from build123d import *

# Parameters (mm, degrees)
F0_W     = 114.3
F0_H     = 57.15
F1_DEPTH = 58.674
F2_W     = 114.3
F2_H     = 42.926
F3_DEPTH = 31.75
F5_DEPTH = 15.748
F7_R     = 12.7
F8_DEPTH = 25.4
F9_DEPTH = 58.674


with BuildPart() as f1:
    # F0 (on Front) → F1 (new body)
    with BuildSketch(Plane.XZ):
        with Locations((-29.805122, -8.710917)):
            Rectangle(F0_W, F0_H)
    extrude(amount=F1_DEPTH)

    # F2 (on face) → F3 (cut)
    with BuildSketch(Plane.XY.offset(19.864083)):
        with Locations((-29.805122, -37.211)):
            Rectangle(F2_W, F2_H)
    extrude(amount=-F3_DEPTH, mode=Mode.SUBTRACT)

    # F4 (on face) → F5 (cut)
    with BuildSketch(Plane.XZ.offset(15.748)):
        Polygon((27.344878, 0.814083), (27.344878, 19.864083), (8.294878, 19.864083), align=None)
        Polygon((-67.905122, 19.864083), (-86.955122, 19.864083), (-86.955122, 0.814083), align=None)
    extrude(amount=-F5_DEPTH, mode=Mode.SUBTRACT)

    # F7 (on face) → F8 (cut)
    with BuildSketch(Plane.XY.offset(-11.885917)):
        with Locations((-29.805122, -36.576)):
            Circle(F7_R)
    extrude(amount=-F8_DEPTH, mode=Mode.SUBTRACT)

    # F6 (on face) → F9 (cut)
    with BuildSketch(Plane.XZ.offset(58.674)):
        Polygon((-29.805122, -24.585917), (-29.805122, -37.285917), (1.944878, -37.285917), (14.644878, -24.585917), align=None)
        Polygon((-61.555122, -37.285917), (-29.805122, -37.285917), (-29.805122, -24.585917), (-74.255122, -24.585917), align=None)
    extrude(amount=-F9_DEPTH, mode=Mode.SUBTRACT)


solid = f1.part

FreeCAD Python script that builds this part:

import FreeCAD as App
import Part
import Sketcher
from FreeCAD import Vector
Q = App.Units.Quantity

doc = App.newDocument("Part")
body = doc.addObject("PartDesign::Body", "Body")

# Sketch on XZ plane
sketch1 = body.newObject("Sketcher::SketchObject", "Sketch")
sketch1.AttachmentSupport = (doc.getObject("XZ_Plane"), [""])
sketch1.MapMode = "FlatFace"
sketch1.addGeometry(Part.LineSegment(Vector(-87, 20, 0), Vector(-87, -37, 0)), False)
sketch1.addGeometry(Part.LineSegment(Vector(-87, -37, 0), Vector(27, -37, 0)), False)
sketch1.addGeometry(Part.LineSegment(Vector(27, -37, 0), Vector(27, 20, 0)), False)
sketch1.addGeometry(Part.LineSegment(Vector(27, 20, 0), Vector(-87, 20, 0)), False)
sketch1.addConstraint(Sketcher.Constraint("Coincident", 0, 2, 1, 1))
sketch1.addConstraint(Sketcher.Constraint("Coincident", 1, 2, 2, 1))
sketch1.addConstraint(Sketcher.Constraint("Coincident", 2, 2, 3, 1))
sketch1.addConstraint(Sketcher.Constraint("Coincident", 3, 2, 0, 1))
sketch1.addConstraint(Sketcher.Constraint("Vertical", 0))
sketch1.addConstraint(Sketcher.Constraint("Horizontal", 1))
sketch1.addConstraint(Sketcher.Constraint("Vertical", 2))
sketch1.addConstraint(Sketcher.Constraint("Horizontal", 3))
sketch1.addConstraint(Sketcher.Constraint("DistanceX", 1, 1, 1, 2, Q("4.5 in")))
sketch1.addConstraint(Sketcher.Constraint("DistanceY", 0, 2, 0, 1, Q("2.25 in")))
sketch1.addConstraint(Sketcher.Constraint("DistanceX", -1, 1, 1, 2, 27.344878))
sketch1.addConstraint(Sketcher.Constraint("DistanceY", 0, 2, -1, 1, 37.285917))
pad1 = body.newObject("PartDesign::Pad", "Pad")
pad1.Profile = sketch1
pad1.Length = Q("2.31 in")

# Sketch on XY plane
sketch2 = body.newObject("Sketcher::SketchObject", "Sketch001")
sketch2.AttachmentSupport = (doc.getObject("XY_Plane"), [""])
sketch2.MapMode = "FlatFace"
sketch2.AttachmentOffset = App.Placement(Vector(0, 0, 19.864083), App.Rotation())
sketch2.addGeometry(Part.LineSegment(Vector(-87, -16, 0), Vector(-87, -59, 0)), False)
sketch2.addGeometry(Part.LineSegment(Vector(-87, -59, 0), Vector(27, -59, 0)), False)
sketch2.addGeometry(Part.LineSegment(Vector(27, -59, 0), Vector(27, -16, 0)), False)
sketch2.addGeometry(Part.LineSegment(Vector(27, -16, 0), Vector(-87, -16, 0)), False)
sketch2.addConstraint(Sketcher.Constraint("Coincident", 0, 2, 1, 1))
sketch2.addConstraint(Sketcher.Constraint("Coincident", 1, 2, 2, 1))
sketch2.addConstraint(Sketcher.Constraint("Coincident", 2, 2, 3, 1))
sketch2.addConstraint(Sketcher.Constraint("Coincident", 3, 2, 0, 1))
sketch2.addConstraint(Sketcher.Constraint("Vertical", 0))
sketch2.addConstraint(Sketcher.Constraint("Horizontal", 1))
sketch2.addConstraint(Sketcher.Constraint("Vertical", 2))
sketch2.addConstraint(Sketcher.Constraint("Horizontal", 3))
sketch2.addConstraint(Sketcher.Constraint("DistanceX", 1, 1, 1, 2, Q("4.5 in")))
sketch2.addConstraint(Sketcher.Constraint("DistanceY", 0, 2, 0, 1, Q("1.69 in")))
sketch2.addConstraint(Sketcher.Constraint("DistanceY", 0, 2, -1, 1, Q("2.31 in")))
sketch2.addConstraint(Sketcher.Constraint("DistanceX", -1, 1, 1, 2, 27.344878))
pocket1 = body.newObject("PartDesign::Pocket", "Pocket")
pocket1.Profile = sketch2
pocket1.Length = Q("1.25 in")

# Sketch on XZ plane
sketch3 = body.newObject("Sketcher::SketchObject", "Sketch002")
sketch3.AttachmentSupport = (doc.getObject("XZ_Plane"), [""])
sketch3.MapMode = "FlatFace"
sketch3.AttachmentOffset = App.Placement(Vector(0, 0, 0.62 * 25.4), App.Rotation())
sketch3.addGeometry(Part.LineSegment(Vector(27, 1, 0), Vector(27, 20, 0)), False)
sketch3.addGeometry(Part.LineSegment(Vector(27, 20, 0), Vector(8, 20, 0)), False)
sketch3.addGeometry(Part.LineSegment(Vector(8, 20, 0), Vector(27, 1, 0)), False)
sketch3.addGeometry(Part.LineSegment(Vector(-68, 20, 0), Vector(-87, 20, 0)), False)
sketch3.addGeometry(Part.LineSegment(Vector(-87, 20, 0), Vector(-87, 1, 0)), False)
sketch3.addGeometry(Part.LineSegment(Vector(-87, 1, 0), Vector(-68, 20, 0)), False)
sketch3.addConstraint(Sketcher.Constraint("Coincident", 0, 2, 1, 1))
sketch3.addConstraint(Sketcher.Constraint("Coincident", 1, 2, 2, 1))
sketch3.addConstraint(Sketcher.Constraint("Coincident", 2, 2, 0, 1))
sketch3.addConstraint(Sketcher.Constraint("Coincident", 3, 2, 4, 1))
sketch3.addConstraint(Sketcher.Constraint("Coincident", 4, 2, 5, 1))
sketch3.addConstraint(Sketcher.Constraint("Coincident", 5, 2, 3, 1))
sketch3.addConstraint(Sketcher.Constraint("Vertical", 0))
sketch3.addConstraint(Sketcher.Constraint("Horizontal", 1))
sketch3.addConstraint(Sketcher.Constraint("Horizontal", 3))
sketch3.addConstraint(Sketcher.Constraint("Vertical", 4))
sketch3.addConstraint(Sketcher.Constraint("Perpendicular", 2, 5))
sketch3.addConstraint(Sketcher.Constraint("Horizontal", 1, 2, 3, 2))
sketch3.addConstraint(Sketcher.Constraint("Horizontal", 2, 2, 4, 2))
sketch3.addConstraint(Sketcher.Constraint("Equal", 1, 3))
sketch3.addConstraint(Sketcher.Constraint("DistanceX", 5, 2, 1, 2, Q("3 in")))
sketch3.addConstraint(Sketcher.Constraint("DistanceX", 1, 2, 1, 1, Q("0.75 in")))
sketch3.addConstraint(Sketcher.Constraint("DistanceX", -1, 1, 0, 2, 27.344878))
sketch3.addConstraint(Sketcher.Constraint("DistanceY", -1, 1, 0, 2, 19.864083))
pocket2 = body.newObject("PartDesign::Pocket", "Pocket001")
pocket2.Profile = sketch3
pocket2.Length = Q("0.62 in")

# Sketch on XY plane
sketch4 = body.newObject("Sketcher::SketchObject", "Sketch003")
sketch4.AttachmentSupport = (doc.getObject("XY_Plane"), [""])
sketch4.MapMode = "FlatFace"
sketch4.AttachmentOffset = App.Placement(Vector(0, 0, -11.885917), App.Rotation())
sketch4.addGeometry(Part.Circle(Vector(-30, -37, 0), Vector(0, 0, 1), 13), False)
sketch4.addConstraint(Sketcher.Constraint("Diameter", 0, Q("1 in")))
sketch4.addConstraint(Sketcher.Constraint("DistanceY", 0, 3, -1, 1, Q("1.44 in")))
sketch4.addConstraint(Sketcher.Constraint("DistanceX", 0, 3, -1, 1, 29.805122))
pocket3 = body.newObject("PartDesign::Pocket", "Pocket002")
pocket3.Profile = sketch4
pocket3.Length = Q("1 in")

# Sketch on XZ plane
sketch5 = body.newObject("Sketcher::SketchObject", "Sketch004")
sketch5.AttachmentSupport = (doc.getObject("XZ_Plane"), [""])
sketch5.MapMode = "FlatFace"
sketch5.AttachmentOffset = App.Placement(Vector(0, 0, 2.31 * 25.4), App.Rotation())
sketch5.addGeometry(Part.LineSegment(Vector(2, -37, 0), Vector(15, -25, 0)), False)
sketch5.addGeometry(Part.LineSegment(Vector(15, -25, 0), Vector(-74, -25, 0)), False)
sketch5.addGeometry(Part.LineSegment(Vector(-74, -25, 0), Vector(-62, -37, 0)), False)
sketch5.addGeometry(Part.LineSegment(Vector(-62, -37, 0), Vector(2, -37, 0)), False)
sketch5.addConstraint(Sketcher.Constraint("Coincident", 0, 2, 1, 1))
sketch5.addConstraint(Sketcher.Constraint("Coincident", 1, 2, 2, 1))
sketch5.addConstraint(Sketcher.Constraint("Coincident", 2, 2, 3, 1))
sketch5.addConstraint(Sketcher.Constraint("Coincident", 3, 2, 0, 1))
sketch5.addConstraint(Sketcher.Constraint("Horizontal", 1))
sketch5.addConstraint(Sketcher.Constraint("Horizontal", 3))
sketch5.addConstraint(Sketcher.Constraint("Perpendicular", 0, 2))
sketch5.addConstraint(Sketcher.Constraint("Equal", 0, 2))
sketch5.addConstraint(Sketcher.Constraint("DistanceX", 1, 2, 1, 1, Q("3.5 in")))
sketch5.addConstraint(Sketcher.Constraint("DistanceX", 3, 1, 3, 2, Q("2.5 in")))
sketch5.addConstraint(Sketcher.Constraint("DistanceX", 1, 2, -1, 1, 74.255122))
sketch5.addConstraint(Sketcher.Constraint("DistanceY", 0, 2, -1, 1, 24.585917))
pocket4 = body.newObject("PartDesign::Pocket", "Pocket003")
pocket4.Profile = sketch5
pocket4.Length = Q("2.31 in")

doc.recompute()
